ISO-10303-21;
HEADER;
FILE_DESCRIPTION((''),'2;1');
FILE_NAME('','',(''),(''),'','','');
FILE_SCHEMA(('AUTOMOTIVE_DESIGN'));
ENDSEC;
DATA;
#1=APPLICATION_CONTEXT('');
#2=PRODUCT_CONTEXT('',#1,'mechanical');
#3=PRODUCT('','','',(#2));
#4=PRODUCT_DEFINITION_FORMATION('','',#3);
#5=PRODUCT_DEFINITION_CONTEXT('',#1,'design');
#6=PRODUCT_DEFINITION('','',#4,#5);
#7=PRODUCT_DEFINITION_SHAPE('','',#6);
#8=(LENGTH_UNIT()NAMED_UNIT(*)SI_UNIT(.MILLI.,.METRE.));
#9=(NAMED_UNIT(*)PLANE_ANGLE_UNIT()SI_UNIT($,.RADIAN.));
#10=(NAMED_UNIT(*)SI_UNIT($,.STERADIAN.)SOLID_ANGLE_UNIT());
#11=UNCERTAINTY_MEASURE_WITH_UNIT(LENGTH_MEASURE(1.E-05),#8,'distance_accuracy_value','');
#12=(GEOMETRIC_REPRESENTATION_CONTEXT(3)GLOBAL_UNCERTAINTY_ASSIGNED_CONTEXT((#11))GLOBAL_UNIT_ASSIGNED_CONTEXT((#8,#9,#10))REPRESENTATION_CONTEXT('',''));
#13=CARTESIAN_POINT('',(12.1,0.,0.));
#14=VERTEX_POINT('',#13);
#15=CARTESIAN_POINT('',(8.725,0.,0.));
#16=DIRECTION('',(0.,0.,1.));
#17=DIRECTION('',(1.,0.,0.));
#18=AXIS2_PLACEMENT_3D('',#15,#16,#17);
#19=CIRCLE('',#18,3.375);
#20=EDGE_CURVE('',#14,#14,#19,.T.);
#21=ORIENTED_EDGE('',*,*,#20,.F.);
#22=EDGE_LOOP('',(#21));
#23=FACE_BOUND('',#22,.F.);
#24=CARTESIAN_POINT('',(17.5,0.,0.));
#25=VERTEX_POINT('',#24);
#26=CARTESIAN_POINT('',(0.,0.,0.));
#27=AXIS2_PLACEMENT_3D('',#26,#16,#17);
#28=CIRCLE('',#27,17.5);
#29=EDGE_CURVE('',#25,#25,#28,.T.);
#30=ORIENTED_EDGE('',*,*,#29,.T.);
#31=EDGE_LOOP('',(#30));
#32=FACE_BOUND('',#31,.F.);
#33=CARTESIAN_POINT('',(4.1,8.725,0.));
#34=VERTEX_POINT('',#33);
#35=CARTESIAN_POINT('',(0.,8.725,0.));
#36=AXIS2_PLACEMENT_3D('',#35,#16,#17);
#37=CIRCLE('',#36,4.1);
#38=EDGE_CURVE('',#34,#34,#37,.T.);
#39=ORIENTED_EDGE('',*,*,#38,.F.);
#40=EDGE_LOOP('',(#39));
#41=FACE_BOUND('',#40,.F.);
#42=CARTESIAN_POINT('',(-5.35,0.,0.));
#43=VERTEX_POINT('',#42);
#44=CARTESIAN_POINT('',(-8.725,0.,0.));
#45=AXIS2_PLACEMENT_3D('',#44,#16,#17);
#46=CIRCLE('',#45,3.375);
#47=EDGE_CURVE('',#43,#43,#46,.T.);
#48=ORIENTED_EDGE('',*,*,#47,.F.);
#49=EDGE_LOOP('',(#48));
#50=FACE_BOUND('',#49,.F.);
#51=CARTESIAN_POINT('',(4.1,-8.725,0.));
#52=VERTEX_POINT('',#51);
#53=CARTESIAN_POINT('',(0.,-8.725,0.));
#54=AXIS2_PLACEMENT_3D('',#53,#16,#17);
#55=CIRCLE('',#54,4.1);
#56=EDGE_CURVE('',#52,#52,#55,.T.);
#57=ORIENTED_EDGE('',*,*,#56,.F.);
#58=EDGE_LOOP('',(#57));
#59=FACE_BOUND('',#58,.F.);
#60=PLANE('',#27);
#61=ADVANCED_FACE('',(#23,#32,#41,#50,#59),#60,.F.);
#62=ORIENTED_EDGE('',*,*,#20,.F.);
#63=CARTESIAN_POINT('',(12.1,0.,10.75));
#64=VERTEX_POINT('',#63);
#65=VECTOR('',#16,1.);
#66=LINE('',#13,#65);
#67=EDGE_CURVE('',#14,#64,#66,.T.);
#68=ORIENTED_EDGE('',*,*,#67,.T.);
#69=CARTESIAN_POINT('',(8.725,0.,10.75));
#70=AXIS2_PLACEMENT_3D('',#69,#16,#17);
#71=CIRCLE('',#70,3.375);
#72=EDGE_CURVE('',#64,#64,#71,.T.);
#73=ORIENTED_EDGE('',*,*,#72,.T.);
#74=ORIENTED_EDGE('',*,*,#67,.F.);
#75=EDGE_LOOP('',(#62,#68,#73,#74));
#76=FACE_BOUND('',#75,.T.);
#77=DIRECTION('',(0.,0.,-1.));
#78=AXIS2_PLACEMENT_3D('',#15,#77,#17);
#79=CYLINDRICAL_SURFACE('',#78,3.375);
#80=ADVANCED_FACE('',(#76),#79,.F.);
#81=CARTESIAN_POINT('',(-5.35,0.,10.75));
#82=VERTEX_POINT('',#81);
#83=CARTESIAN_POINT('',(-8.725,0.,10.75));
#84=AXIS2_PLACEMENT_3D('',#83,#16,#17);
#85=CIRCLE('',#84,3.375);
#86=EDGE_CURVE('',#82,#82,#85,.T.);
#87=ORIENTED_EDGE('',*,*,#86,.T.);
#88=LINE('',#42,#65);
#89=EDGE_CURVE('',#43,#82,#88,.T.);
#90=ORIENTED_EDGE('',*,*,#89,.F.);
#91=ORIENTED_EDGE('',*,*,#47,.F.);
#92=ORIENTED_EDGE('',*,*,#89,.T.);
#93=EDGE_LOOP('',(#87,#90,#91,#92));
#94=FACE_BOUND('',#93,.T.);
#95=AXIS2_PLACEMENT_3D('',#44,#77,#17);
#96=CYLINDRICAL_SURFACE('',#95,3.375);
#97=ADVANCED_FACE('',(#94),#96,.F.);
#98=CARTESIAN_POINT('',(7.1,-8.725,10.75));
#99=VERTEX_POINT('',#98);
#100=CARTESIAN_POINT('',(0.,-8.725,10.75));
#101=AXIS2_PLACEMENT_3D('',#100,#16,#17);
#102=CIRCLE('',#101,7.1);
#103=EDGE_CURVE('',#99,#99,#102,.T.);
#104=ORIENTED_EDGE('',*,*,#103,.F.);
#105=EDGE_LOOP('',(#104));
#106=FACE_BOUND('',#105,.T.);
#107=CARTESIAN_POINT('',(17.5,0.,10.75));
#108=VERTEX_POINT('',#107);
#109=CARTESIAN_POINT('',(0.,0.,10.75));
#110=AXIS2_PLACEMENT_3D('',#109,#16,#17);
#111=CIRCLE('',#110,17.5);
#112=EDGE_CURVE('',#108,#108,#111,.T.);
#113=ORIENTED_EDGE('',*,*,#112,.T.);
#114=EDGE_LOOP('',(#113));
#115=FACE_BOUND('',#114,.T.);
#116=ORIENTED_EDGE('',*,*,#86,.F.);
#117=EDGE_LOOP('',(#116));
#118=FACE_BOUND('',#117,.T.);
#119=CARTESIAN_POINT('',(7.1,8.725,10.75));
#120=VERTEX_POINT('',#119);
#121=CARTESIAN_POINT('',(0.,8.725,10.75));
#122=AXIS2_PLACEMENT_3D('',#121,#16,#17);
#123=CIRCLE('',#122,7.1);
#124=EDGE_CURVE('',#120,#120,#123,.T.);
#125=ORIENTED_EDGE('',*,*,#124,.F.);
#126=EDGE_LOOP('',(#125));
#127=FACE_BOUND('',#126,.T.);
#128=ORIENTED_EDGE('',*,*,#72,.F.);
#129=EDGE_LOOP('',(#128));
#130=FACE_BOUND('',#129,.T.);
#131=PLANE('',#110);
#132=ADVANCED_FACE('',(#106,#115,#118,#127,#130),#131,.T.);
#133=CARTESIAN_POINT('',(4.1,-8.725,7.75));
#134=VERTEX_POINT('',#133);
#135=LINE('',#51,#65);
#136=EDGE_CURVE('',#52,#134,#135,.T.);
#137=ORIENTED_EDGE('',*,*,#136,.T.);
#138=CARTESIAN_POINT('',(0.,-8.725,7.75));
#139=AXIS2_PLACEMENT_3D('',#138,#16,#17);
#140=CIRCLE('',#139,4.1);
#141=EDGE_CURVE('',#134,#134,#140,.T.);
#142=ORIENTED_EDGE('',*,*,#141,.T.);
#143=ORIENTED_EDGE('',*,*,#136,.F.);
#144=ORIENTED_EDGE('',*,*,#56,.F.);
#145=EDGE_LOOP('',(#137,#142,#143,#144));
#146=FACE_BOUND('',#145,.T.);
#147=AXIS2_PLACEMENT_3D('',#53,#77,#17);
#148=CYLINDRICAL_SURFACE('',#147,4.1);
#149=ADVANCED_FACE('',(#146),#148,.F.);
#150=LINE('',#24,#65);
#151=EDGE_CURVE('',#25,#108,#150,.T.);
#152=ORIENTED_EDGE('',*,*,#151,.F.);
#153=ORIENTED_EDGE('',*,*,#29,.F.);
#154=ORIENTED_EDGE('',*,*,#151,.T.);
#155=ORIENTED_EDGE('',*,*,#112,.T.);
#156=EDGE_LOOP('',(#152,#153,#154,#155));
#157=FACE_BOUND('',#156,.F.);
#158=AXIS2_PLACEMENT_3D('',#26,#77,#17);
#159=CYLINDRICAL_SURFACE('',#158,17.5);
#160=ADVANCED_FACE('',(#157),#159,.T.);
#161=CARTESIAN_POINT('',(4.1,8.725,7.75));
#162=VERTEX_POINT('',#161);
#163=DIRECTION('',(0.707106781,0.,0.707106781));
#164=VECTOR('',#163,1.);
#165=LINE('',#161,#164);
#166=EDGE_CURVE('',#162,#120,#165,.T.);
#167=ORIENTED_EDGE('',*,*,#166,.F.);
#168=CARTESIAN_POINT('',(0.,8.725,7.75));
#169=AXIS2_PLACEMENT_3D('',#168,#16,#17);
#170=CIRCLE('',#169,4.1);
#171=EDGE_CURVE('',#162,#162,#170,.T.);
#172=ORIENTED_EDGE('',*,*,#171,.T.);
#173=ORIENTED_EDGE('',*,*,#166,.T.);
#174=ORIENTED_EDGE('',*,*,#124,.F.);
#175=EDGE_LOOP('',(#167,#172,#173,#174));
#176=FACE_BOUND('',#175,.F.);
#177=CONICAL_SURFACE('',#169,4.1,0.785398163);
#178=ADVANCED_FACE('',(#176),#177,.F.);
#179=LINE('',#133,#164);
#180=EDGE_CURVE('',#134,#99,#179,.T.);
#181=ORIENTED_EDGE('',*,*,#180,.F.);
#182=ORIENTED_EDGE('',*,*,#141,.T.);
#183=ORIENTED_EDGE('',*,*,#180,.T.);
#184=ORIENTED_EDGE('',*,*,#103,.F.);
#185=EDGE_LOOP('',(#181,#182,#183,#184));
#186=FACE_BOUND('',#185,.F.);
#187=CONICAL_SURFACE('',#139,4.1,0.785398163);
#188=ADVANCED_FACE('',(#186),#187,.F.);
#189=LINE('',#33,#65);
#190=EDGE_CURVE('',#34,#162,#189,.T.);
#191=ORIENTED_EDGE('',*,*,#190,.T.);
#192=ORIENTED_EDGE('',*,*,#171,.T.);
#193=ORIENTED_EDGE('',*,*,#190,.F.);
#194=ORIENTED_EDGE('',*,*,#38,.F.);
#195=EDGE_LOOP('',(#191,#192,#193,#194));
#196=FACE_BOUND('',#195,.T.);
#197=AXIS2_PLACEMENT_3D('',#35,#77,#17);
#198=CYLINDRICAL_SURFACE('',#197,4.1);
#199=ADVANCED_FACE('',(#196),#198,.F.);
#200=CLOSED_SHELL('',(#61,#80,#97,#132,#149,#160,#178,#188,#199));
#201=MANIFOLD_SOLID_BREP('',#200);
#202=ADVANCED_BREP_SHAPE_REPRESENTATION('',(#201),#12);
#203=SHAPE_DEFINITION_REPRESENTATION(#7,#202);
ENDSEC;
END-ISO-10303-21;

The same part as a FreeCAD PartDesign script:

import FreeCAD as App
import Part
import Sketcher


def edges_at(feature, points):
    """Names of the edges that pass closest to the given points."""
    edges = feature.Shape.Edges
    near = lambda p: min(range(len(edges)), key=lambda i: edges[i].distToShape(Part.Vertex(*p))[0])
    return sorted({f"Edge{near(p) + 1}" for p in points})

doc = App.newDocument("Part")
body = doc.addObject("PartDesign::Body", "Body")

# Sketch on XY plane
sketch1 = body.newObject("Sketcher::SketchObject", "Sketch")
sketch1.AttachmentSupport = (doc.getObject("XY_Plane"), [""])
sketch1.MapMode = "FlatFace"
sketch1.addGeometry([
    Part.Circle(App.Vector(0, 0, 0), App.Vector(0, 0, 1), 17.5),  # 0
    Part.Circle(App.Vector(0, -8.7, 0), App.Vector(0, 0, 1), 4.1),  # 1
    Part.Circle(App.Vector(-8.7, 0, 0), App.Vector(0, 0, 1), 3.4),  # 2
    Part.Circle(App.Vector(8.7, 0, 0), App.Vector(0, 0, 1), 3.4),  # 3
    Part.Circle(App.Vector(0, 8.7, 0), App.Vector(0, 0, 1), 4.1),  # 4
], False)
sketch1.addConstraint([
    Sketcher.Constraint("Coincident", 0, 3, -1, 1),
    Sketcher.Constraint("Equal", 2, 3),
    Sketcher.Constraint("Equal", 1, 4),
    Sketcher.Constraint("Symmetric", 2, 3, 3, 3, -1, 1),
    Sketcher.Constraint("Symmetric", 1, 3, 4, 3, -1, 1),
    Sketcher.Constraint("PointOnObject", 1, 3, -2),
    Sketcher.Constraint("PointOnObject", 2, 3, -1),
    Sketcher.Constraint("Diameter", 0, 35.0),
    Sketcher.Constraint("Diameter", 1, 8.2),
    Sketcher.Constraint("Diameter", 2, 6.75),
    Sketcher.Constraint("DistanceX", 2, 3, 3, 3, 17.45),
    Sketcher.Constraint("DistanceY", 1, 3, 4, 3, 17.45),
])
pad1 = body.newObject("PartDesign::Pad", "Pad")
pad1.Profile = sketch1
pad1.Length = 10.75
doc.recompute()

chamfer = body.newObject("PartDesign::Chamfer", "Chamfer")
chamfer.Base = (pad1, edges_at(pad1, [(-4.1, 8.725, 10.75), (-4.1, -8.725, 10.75)]))
chamfer.Size = 3

doc.recompute()
